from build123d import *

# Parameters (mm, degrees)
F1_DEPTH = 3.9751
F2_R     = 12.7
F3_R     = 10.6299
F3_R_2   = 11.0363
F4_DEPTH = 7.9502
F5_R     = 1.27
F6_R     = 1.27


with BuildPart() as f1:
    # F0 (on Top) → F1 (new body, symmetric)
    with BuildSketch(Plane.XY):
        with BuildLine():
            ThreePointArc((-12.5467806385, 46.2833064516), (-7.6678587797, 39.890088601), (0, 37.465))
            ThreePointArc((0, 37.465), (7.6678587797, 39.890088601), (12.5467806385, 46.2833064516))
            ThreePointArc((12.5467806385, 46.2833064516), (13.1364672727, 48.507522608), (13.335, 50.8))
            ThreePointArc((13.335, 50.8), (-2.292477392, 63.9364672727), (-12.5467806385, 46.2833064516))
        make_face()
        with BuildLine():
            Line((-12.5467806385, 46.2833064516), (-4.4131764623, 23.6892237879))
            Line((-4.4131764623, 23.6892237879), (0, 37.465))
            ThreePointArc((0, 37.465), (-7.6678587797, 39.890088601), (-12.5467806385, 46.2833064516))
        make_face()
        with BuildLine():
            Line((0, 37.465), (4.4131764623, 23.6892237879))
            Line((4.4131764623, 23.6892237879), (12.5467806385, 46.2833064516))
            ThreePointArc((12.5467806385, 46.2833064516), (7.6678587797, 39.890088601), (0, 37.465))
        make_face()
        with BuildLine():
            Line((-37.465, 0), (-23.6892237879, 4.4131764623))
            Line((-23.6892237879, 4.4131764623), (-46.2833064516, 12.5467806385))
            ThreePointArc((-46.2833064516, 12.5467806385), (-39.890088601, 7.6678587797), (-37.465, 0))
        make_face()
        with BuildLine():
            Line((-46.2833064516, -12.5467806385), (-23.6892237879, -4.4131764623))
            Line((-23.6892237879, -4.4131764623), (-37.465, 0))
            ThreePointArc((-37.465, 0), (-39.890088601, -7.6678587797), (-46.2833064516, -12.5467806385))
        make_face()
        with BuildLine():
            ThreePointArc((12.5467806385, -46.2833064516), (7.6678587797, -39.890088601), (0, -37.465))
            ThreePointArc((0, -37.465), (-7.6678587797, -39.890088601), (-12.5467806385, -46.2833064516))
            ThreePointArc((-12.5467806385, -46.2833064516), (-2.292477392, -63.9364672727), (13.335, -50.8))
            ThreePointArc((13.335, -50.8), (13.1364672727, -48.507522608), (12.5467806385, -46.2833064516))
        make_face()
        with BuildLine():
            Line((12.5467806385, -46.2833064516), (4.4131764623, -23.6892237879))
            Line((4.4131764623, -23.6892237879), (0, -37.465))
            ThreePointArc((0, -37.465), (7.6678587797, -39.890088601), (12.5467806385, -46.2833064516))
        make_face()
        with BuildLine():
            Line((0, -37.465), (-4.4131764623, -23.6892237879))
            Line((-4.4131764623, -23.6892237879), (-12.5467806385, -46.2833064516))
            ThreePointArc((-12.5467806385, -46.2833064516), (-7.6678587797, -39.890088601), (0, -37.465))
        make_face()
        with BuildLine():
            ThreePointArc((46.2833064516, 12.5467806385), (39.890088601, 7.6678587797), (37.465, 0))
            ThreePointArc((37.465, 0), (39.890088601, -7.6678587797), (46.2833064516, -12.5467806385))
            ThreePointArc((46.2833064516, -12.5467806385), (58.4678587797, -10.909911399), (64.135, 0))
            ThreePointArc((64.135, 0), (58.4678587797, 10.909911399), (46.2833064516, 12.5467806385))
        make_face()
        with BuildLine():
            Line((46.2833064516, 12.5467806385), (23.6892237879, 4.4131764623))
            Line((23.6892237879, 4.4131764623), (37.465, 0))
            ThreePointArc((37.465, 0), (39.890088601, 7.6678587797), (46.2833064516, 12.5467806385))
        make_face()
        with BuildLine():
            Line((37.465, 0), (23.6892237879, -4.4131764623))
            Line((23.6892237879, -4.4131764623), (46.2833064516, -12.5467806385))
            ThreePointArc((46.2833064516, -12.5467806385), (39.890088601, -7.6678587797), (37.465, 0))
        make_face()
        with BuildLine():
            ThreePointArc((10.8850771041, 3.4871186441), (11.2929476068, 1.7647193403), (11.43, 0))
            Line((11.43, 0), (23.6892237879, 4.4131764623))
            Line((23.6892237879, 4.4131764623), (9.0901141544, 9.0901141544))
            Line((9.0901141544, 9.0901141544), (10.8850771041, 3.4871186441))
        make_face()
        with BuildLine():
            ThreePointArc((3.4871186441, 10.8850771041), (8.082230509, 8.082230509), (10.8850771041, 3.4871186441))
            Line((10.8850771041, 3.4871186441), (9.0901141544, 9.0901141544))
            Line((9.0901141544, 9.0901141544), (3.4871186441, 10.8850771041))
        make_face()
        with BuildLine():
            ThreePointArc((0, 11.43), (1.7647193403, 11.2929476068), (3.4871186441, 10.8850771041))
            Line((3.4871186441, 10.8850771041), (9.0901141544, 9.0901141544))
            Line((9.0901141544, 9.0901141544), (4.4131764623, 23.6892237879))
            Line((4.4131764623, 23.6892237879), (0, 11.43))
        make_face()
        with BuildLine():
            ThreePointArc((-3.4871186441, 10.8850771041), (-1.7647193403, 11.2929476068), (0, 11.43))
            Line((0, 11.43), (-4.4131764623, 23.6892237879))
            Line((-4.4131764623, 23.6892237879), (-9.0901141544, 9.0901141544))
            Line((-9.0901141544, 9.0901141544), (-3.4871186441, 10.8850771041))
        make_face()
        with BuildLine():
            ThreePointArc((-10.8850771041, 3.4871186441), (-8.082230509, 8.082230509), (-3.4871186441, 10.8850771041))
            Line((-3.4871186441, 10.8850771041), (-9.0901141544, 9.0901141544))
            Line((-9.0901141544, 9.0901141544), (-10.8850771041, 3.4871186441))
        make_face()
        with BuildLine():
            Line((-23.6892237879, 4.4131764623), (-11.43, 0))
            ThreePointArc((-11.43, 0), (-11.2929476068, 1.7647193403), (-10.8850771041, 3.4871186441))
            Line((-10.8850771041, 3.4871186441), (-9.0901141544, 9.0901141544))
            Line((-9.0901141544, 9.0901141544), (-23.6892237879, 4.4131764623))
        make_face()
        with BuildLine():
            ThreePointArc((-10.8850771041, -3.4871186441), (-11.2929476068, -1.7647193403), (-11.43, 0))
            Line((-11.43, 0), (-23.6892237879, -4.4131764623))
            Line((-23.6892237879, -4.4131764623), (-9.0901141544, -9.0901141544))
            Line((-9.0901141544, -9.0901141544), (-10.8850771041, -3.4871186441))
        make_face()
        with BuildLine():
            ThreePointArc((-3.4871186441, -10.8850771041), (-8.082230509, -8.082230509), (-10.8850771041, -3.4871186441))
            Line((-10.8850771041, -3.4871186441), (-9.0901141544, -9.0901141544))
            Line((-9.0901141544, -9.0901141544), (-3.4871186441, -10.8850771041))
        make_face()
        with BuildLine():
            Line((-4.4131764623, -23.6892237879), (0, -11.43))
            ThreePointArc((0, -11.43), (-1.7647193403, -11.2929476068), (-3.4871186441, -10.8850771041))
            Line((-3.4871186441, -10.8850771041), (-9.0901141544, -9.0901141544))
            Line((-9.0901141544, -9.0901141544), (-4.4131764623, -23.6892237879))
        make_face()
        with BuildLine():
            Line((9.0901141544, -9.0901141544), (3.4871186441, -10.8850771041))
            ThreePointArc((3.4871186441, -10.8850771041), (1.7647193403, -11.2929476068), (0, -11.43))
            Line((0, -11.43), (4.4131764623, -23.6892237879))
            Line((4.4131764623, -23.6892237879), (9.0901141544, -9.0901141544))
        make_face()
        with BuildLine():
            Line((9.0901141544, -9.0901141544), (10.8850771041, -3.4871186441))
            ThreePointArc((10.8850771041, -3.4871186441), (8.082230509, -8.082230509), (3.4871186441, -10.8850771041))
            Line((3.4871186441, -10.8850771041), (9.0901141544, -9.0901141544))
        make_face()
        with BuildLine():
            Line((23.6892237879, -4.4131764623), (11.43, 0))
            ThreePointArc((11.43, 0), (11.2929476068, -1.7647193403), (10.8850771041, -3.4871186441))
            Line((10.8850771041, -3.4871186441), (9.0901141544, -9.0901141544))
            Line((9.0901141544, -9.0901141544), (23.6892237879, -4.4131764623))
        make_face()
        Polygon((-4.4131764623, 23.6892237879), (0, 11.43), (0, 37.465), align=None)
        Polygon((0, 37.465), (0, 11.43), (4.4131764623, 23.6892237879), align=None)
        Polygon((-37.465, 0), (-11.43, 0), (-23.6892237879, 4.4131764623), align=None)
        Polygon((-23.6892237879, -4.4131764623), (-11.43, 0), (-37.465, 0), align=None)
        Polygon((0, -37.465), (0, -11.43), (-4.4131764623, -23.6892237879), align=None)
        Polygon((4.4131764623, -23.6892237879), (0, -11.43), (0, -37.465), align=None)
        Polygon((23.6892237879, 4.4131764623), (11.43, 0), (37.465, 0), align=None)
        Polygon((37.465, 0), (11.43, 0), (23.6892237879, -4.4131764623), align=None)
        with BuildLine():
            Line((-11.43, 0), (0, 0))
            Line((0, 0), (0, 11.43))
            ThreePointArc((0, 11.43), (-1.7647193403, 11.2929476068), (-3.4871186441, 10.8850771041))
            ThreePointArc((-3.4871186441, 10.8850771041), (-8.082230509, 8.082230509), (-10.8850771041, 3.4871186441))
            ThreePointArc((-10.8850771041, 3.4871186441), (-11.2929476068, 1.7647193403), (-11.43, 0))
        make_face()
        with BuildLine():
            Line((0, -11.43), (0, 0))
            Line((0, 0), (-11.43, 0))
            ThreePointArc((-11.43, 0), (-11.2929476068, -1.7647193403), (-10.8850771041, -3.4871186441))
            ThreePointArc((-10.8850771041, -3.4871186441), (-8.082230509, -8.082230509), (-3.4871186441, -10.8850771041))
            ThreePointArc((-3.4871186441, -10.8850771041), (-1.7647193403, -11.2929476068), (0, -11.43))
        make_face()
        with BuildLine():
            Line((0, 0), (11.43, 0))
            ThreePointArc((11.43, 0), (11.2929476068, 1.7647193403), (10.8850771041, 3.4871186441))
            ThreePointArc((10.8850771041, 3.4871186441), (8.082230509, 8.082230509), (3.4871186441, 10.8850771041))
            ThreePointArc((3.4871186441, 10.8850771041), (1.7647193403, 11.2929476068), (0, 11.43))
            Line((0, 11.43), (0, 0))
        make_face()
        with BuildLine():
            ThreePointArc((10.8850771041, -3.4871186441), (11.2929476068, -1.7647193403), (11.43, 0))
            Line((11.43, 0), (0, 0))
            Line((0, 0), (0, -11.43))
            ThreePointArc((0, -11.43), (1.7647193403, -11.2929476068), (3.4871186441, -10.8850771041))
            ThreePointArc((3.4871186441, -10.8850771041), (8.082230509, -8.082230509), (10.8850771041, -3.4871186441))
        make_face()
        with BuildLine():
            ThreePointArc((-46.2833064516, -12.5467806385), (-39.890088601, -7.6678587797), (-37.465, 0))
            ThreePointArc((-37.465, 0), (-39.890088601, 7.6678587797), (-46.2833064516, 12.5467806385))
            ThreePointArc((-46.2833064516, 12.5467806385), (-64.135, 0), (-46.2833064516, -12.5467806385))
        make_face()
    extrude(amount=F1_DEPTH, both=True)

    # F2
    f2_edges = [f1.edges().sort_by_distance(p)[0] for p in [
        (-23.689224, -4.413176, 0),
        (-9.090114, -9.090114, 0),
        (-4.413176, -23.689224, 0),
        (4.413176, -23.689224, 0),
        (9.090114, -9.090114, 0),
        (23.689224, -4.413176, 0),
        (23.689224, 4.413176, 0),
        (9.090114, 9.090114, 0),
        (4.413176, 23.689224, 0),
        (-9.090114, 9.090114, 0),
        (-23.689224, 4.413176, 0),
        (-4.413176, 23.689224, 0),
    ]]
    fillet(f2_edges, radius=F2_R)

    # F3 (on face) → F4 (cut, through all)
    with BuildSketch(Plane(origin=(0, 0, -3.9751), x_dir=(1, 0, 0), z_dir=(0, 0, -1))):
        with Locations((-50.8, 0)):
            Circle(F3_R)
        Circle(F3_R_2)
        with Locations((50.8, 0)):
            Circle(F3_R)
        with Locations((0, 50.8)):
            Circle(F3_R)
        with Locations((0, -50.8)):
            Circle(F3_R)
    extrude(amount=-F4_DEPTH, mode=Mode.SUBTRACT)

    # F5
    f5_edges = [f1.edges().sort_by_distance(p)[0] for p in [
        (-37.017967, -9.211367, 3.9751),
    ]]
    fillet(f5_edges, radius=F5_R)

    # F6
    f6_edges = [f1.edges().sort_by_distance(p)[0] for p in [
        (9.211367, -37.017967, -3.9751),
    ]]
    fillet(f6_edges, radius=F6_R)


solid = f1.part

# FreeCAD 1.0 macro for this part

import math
import FreeCAD as App
import Part
import Sketcher
from FreeCAD import Vector
Q = App.Units.Quantity


def edges_at(feature, points):
    """Names of the edges that pass closest to the given points."""
    edges = feature.Shape.Edges
    near = lambda p: min(range(len(edges)), key=lambda i: edges[i].distToShape(Part.Vertex(*p))[0])
    return sorted({f"Edge{near(p) + 1}" for p in points})

doc = App.newDocument("Part")
params = doc.addObject("Spreadsheet::Sheet", "Params")
for row, (alias, value) in enumerate([
    ("sketch1_radius", "0.525 in"),
    ("pad1_length", "0.313 in"),
    ("fillet_radius", "0.5 in"),
    ("sketch2_diameter", "0.837 in"),
    ("sketch2_diameter2", "0.869 in"),
    ("fillet2_radius", "0.05 in"),
    ("fillet3_radius", "0.05 in"),
], start=1):
    params.set(f"A{row}", alias)
    params.set(f"B{row}", "=" + value)
    params.setAlias(f"B{row}", alias)

body = doc.addObject("PartDesign::Body", "Body")

# Sketch on XY plane
sketch1 = body.newObject("Sketcher::SketchObject", "Sketch")
sketch1.AttachmentSupport = (doc.getObject("XY_Plane"), [""])
sketch1.MapMode = "FlatFace"
sketch1.addGeometry([
    Part.LineSegment(Vector(9.1, -9.1, 0), Vector(23.7, -4.4, 0)),  # 0
    Part.LineSegment(Vector(23.7, -4.4, 0), Vector(46.3, -12.5, 0)),  # 1
    Part.ArcOfCircle(Part.Circle(Vector(50.8, 0, 0), Vector(0, 0, 1), 13.3), math.radians(-110), math.radians(0)),  # 2
    Part.ArcOfCircle(Part.Circle(Vector(50.8, 0, 0), Vector(0, 0, 1), 13.3), math.radians(0), math.radians(110)),  # 3
    Part.LineSegment(Vector(46.3, 12.5, 0), Vector(23.7, 4.4, 0)),  # 4
    Part.LineSegment(Vector(23.7, 4.4, 0), Vector(9.1, 9.1, 0)),  # 5
    Part.LineSegment(Vector(9.1, 9.1, 0), Vector(4.4, 23.7, 0)),  # 6
    Part.LineSegment(Vector(4.4, 23.7, 0), Vector(12.5, 46.3, 0)),  # 7
    Part.ArcOfCircle(Part.Circle(Vector(0, 50.8, 0), Vector(0, 0, 1), 13.3), math.radians(-19.8), math.radians(0)),  # 8
    Part.ArcOfCircle(Part.Circle(Vector(0, 50.8, 0), Vector(0, 0, 1), 13.3), math.radians(0), math.radians(200)),  # 9
    Part.LineSegment(Vector(-12.5, 46.3, 0), Vector(-4.4, 23.7, 0)),  # 10
    Part.LineSegment(Vector(-4.4, 23.7, 0), Vector(-9.1, 9.1, 0)),  # 11
    Part.LineSegment(Vector(-9.1, 9.1, 0), Vector(-23.7, 4.4, 0)),  # 12
    Part.LineSegment(Vector(-23.7, 4.4, 0), Vector(-46.3, 12.5, 0)),  # 13
    Part.ArcOfCircle(Part.Circle(Vector(-50.8, 0, 0), Vector(0, 0, 1), 13.3), math.radians(70), math.radians(290)),  # 14
    Part.LineSegment(Vector(-46.3, -12.5, 0), Vector(-23.7, -4.4, 0)),  # 15
    Part.LineSegment(Vector(-23.7, -4.4, 0), Vector(-9.1, -9.1, 0)),  # 16
    Part.LineSegment(Vector(-9.1, -9.1, 0), Vector(-4.4, -23.7, 0)),  # 17
    Part.LineSegment(Vector(-4.4, -23.7, 0), Vector(-12.5, -46.3, 0)),  # 18
    Part.ArcOfCircle(Part.Circle(Vector(0, -50.8, 0), Vector(0, 0, 1), 13.3), math.radians(160), math.radians(360)),  # 19
    Part.ArcOfCircle(Part.Circle(Vector(0, -50.8, 0), Vector(0, 0, 1), 13.3), math.radians(0), math.radians(19.8)),  # 20
    Part.LineSegment(Vector(12.5, -46.3, 0), Vector(4.4, -23.7, 0)),  # 21
    Part.LineSegment(Vector(4.4, -23.7, 0), Vector(9.1, -9.1, 0)),  # 22
], False)
sketch1.addConstraint([
    Sketcher.Constraint("Coincident", 0, 2, 1, 1),
    Sketcher.Constraint("Tangent", 1, 2, 2, 1),
    Sketcher.Constraint("Tangent", 2, 2, 3, 1),
    Sketcher.Constraint("Tangent", 3, 2, 4, 1),
    Sketcher.Constraint("Coincident", 4, 2, 5, 1),
    Sketcher.Constraint("Coincident", 5, 2, 6, 1),
    Sketcher.Constraint("Coincident", 6, 2, 7, 1),
    Sketcher.Constraint("Tangent", 7, 2, 8, 1),
    Sketcher.Constraint("Tangent", 8, 2, 9, 1),
    Sketcher.Constraint("Tangent", 9, 2, 10, 1),
    Sketcher.Constraint("Coincident", 10, 2, 11, 1),
    Sketcher.Constraint("Coincident", 11, 2, 12, 1),
    Sketcher.Constraint("Coincident", 12, 2, 13, 1),
    Sketcher.Constraint("Tangent", 13, 2, 14, 1),
    Sketcher.Constraint("Tangent", 14, 2, 15, 1),
    Sketcher.Constraint("Coincident", 15, 2, 16, 1),
    Sketcher.Constraint("Coincident", 16, 2, 17, 1),
    Sketcher.Constraint("Coincident", 17, 2, 18, 1),
    Sketcher.Constraint("Tangent", 18, 2, 19, 1),
    Sketcher.Constraint("Tangent", 19, 2, 20, 1),
    Sketcher.Constraint("Tangent", 20, 2, 21, 1),
    Sketcher.Constraint("Coincident", 21, 2, 22, 1),
    Sketcher.Constraint("Coincident", 22, 2, 0, 1),
    Sketcher.Constraint("Equal", 2, 3),
    Sketcher.Constraint("Equal", 3, 8),
    Sketcher.Constraint("Equal", 8, 9),
    Sketcher.Constraint("Equal", 9, 14),
    Sketcher.Constraint("Equal", 14, 19),
    Sketcher.Constraint("Equal", 19, 20),
    Sketcher.Constraint("Symmetric", 2, 3, 14, 3, -1, 1),
    Sketcher.Constraint("Symmetric", 8, 3, 19, 3, -1, 1),
    Sketcher.Constraint("Symmetric", 0, 2, 12, 2, -1, 1),
    Sketcher.Constraint("Symmetric", 4, 2, 15, 2, -1, 1),
    Sketcher.Constraint("Symmetric", 5, 2, 16, 2, -1, 1),
    Sketcher.Constraint("Symmetric", 6, 2, 17, 2, -1, 1),
    Sketcher.Constraint("Symmetric", 10, 2, 21, 2, -1, 1),
    Sketcher.Constraint("Symmetric", 11, 2, 22, 2, -1, 1),
    Sketcher.Constraint("Symmetric", 7, 2, 9, 2, -2),
    Sketcher.Constraint("Symmetric", 5, 2, 11, 2, -2),
    Sketcher.Constraint("Symmetric", 4, 2, 12, 2, -2),
    Sketcher.Constraint("PointOnObject", 2, 3, -1),
    Sketcher.Constraint("PointOnObject", 2, 2, -1),
    Sketcher.Constraint("Perpendicular", 0, 6),
    Sketcher.Constraint("Perpendicular", 1, 7),
    Sketcher.Constraint("Perpendicular", 5, 11),
    Sketcher.Constraint("Horizontal", 9, 3, 8, 2),
    Sketcher.Constraint("Horizontal", 20, 3, 19, 2),
    Sketcher.Constraint("Equal", 5, 6),
    Sketcher.Constraint("Equal", 4, 7),
    Sketcher.Constraint("DistanceX", -1, 1, 2, 3, Q("2 in")),
    Sketcher.Constraint("Radius", 2, Q("0.525 in")),
    Sketcher.Constraint("Distance", 1, 24.013498),
    Sketcher.Constraint("DistanceY", 0, 2, 6, 2, 28.1024),
    Sketcher.Constraint("DistanceX", 5, 2, 4, 2, 14.59911),
])
sketch1.setExpression("Constraints[50]", "Params.sketch1_radius")
pad1 = body.newObject("PartDesign::Pad", "Pad")
pad1.Profile = sketch1
pad1.setExpression("Length", "Params.pad1_length")
pad1.Midplane = True
doc.recompute()

fillet = body.newObject("PartDesign::Fillet", "Fillet")
fillet.Base = (pad1, edges_at(pad1, [
    (-23.689, -4.413, 0),
    (-9.09, -9.09, 0),
    (-4.413, -23.689, 0),
    (4.413, -23.689, 0),
    (9.09, -9.09, 0),
    (23.689, -4.413, 0),
    (23.689, 4.413, 0),
    (9.09, 9.09, 0),
    (4.413, 23.689, 0),
    (-9.09, 9.09, 0),
    (-23.689, 4.413, 0),
    (-4.413, 23.689, 0),
]))
fillet.setExpression("Radius", "Params.fillet_radius")

# Sketch on XY plane
sketch2 = body.newObject("Sketcher::SketchObject", "Sketch001")
sketch2.AttachmentSupport = (doc.getObject("XY_Plane"), [""])
sketch2.MapMode = "FlatFace"
sketch2.AttachmentOffset = App.Placement(Vector(0, 0, -0.1565 * 25.4), App.Rotation())
sketch2.addGeometry([
    Part.Circle(Vector(-51, 0, 0), Vector(0, 0, 1), 11),  # 0
    Part.Circle(Vector(0, 0, 0), Vector(0, 0, 1), 11),  # 1
    Part.Circle(Vector(51, 0, 0), Vector(0, 0, 1), 11),  # 2
    Part.Circle(Vector(0, -51, 0), Vector(0, 0, 1), 11),  # 3
    Part.Circle(Vector(0, 51, 0), Vector(0, 0, 1), 11),  # 4
], False)
sketch2.addConstraint([
    Sketcher.Constraint("Coincident", 1, 3, -1, 1),
    Sketcher.Constraint("Equal", 0, 2),
    Sketcher.Constraint("Equal", 2, 3),
    Sketcher.Constraint("Equal", 3, 4),
    Sketcher.Constraint("Symmetric", 0, 3, 2, 3, -1, 1),
    Sketcher.Constraint("Symmetric", 3, 3, 4, 3, -1, 1),
    Sketcher.Constraint("PointOnObject", 0, 3, -1),
    Sketcher.Constraint("PointOnObject", 3, 3, -2),
    Sketcher.Constraint("Diameter", 0, Q("0.837 in")),
    Sketcher.Constraint("Diameter", 1, Q("0.869 in")),
    Sketcher.Constraint("DistanceX", 0, 3, -1, 1, Q("2 in")),
    Sketcher.Constraint("DistanceY", 3, 3, -1, 1, Q("2 in")),
])
sketch2.setExpression("Constraints[8]", "Params.sketch2_diameter")
sketch2.setExpression("Constraints[9]", "Params.sketch2_diameter2")
pocket1 = body.newObject("PartDesign::Pocket", "Pocket")
pocket1.Profile = sketch2
pocket1.Type = "ThroughAll"
pocket1.Reversed = True
doc.recompute()

fillet2 = body.newObject("PartDesign::Fillet", "Fillet001")
fillet2.Base = (pocket1, edges_at(pocket1, [(-37.018, -9.211, 3.975)]))
fillet2.setExpression("Radius", "Params.fillet2_radius")
doc.recompute()

fillet3 = body.newObject("PartDesign::Fillet", "Fillet002")
fillet3.Base = (fillet2, edges_at(fillet2, [(9.211, -37.018, -3.975)]))
fillet3.setExpression("Radius", "Params.fillet3_radius")

doc.recompute()
